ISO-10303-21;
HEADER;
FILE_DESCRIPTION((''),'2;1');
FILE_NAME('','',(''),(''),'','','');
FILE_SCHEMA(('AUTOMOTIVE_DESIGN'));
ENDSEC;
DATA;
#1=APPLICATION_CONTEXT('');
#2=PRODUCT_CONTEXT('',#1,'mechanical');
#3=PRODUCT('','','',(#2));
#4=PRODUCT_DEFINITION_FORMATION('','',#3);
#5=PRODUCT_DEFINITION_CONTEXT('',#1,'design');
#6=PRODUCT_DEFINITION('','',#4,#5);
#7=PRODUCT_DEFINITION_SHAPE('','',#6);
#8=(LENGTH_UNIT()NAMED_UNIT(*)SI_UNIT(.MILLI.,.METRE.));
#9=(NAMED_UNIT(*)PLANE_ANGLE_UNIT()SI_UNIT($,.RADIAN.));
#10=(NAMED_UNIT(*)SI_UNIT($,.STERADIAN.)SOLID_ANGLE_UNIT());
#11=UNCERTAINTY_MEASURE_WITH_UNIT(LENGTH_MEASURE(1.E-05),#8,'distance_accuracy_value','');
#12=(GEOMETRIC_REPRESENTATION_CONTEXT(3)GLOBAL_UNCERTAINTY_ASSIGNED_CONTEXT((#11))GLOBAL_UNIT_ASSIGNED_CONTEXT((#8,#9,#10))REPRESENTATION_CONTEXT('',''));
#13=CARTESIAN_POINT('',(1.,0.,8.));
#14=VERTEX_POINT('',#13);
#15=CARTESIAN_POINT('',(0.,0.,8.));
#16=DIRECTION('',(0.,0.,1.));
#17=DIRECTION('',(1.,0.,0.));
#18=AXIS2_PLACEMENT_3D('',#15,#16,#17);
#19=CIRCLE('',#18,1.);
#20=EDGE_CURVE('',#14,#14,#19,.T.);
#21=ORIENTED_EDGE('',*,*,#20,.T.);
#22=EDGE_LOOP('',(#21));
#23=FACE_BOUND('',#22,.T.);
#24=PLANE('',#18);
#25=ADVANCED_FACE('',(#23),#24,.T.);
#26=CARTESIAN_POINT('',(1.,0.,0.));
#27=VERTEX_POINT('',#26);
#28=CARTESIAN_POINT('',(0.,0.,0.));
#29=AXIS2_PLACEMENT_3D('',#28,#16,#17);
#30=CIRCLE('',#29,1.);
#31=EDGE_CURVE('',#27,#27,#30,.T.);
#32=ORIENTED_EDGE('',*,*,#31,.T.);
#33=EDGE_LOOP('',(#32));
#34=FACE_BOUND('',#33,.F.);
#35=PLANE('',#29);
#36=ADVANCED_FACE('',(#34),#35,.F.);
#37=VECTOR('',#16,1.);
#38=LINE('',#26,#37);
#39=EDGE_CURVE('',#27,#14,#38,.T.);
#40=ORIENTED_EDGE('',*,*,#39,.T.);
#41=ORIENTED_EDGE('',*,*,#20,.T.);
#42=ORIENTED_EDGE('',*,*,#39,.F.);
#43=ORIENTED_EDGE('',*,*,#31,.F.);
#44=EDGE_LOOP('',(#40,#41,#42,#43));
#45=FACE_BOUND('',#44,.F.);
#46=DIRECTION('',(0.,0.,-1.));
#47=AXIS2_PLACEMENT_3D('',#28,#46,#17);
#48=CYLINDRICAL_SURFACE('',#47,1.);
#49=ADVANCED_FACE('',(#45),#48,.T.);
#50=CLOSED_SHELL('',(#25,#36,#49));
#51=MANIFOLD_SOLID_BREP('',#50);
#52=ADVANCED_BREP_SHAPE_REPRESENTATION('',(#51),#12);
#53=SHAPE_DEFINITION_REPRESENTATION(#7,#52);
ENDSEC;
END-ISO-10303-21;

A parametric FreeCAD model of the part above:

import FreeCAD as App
import Part
import Sketcher
from FreeCAD import Vector
Q = App.Units.Quantity

doc = App.newDocument("Part")
body = doc.addObject("PartDesign::Body", "Body")

sketch1 = body.newObject("Sketcher::SketchObject", "Sketch")
sketch1.AttachmentSupport = (doc.getObject("XY_Plane"), [""])
sketch1.MapMode = "FlatFace"
sketch1.addGeometry(Part.Circle(Vector(0, 0, 0), Vector(0, 0, 1), 1), False)
sketch1.addConstraint(Sketcher.Constraint("Coincident", 0, 3, -1, 1))
sketch1.addConstraint(Sketcher.Constraint("Diameter", 0, Q("2 mm")))
pad1 = body.newObject("PartDesign::Pad", "Pad")
pad1.Profile = sketch1
pad1.Length = 8

doc.recompute()
